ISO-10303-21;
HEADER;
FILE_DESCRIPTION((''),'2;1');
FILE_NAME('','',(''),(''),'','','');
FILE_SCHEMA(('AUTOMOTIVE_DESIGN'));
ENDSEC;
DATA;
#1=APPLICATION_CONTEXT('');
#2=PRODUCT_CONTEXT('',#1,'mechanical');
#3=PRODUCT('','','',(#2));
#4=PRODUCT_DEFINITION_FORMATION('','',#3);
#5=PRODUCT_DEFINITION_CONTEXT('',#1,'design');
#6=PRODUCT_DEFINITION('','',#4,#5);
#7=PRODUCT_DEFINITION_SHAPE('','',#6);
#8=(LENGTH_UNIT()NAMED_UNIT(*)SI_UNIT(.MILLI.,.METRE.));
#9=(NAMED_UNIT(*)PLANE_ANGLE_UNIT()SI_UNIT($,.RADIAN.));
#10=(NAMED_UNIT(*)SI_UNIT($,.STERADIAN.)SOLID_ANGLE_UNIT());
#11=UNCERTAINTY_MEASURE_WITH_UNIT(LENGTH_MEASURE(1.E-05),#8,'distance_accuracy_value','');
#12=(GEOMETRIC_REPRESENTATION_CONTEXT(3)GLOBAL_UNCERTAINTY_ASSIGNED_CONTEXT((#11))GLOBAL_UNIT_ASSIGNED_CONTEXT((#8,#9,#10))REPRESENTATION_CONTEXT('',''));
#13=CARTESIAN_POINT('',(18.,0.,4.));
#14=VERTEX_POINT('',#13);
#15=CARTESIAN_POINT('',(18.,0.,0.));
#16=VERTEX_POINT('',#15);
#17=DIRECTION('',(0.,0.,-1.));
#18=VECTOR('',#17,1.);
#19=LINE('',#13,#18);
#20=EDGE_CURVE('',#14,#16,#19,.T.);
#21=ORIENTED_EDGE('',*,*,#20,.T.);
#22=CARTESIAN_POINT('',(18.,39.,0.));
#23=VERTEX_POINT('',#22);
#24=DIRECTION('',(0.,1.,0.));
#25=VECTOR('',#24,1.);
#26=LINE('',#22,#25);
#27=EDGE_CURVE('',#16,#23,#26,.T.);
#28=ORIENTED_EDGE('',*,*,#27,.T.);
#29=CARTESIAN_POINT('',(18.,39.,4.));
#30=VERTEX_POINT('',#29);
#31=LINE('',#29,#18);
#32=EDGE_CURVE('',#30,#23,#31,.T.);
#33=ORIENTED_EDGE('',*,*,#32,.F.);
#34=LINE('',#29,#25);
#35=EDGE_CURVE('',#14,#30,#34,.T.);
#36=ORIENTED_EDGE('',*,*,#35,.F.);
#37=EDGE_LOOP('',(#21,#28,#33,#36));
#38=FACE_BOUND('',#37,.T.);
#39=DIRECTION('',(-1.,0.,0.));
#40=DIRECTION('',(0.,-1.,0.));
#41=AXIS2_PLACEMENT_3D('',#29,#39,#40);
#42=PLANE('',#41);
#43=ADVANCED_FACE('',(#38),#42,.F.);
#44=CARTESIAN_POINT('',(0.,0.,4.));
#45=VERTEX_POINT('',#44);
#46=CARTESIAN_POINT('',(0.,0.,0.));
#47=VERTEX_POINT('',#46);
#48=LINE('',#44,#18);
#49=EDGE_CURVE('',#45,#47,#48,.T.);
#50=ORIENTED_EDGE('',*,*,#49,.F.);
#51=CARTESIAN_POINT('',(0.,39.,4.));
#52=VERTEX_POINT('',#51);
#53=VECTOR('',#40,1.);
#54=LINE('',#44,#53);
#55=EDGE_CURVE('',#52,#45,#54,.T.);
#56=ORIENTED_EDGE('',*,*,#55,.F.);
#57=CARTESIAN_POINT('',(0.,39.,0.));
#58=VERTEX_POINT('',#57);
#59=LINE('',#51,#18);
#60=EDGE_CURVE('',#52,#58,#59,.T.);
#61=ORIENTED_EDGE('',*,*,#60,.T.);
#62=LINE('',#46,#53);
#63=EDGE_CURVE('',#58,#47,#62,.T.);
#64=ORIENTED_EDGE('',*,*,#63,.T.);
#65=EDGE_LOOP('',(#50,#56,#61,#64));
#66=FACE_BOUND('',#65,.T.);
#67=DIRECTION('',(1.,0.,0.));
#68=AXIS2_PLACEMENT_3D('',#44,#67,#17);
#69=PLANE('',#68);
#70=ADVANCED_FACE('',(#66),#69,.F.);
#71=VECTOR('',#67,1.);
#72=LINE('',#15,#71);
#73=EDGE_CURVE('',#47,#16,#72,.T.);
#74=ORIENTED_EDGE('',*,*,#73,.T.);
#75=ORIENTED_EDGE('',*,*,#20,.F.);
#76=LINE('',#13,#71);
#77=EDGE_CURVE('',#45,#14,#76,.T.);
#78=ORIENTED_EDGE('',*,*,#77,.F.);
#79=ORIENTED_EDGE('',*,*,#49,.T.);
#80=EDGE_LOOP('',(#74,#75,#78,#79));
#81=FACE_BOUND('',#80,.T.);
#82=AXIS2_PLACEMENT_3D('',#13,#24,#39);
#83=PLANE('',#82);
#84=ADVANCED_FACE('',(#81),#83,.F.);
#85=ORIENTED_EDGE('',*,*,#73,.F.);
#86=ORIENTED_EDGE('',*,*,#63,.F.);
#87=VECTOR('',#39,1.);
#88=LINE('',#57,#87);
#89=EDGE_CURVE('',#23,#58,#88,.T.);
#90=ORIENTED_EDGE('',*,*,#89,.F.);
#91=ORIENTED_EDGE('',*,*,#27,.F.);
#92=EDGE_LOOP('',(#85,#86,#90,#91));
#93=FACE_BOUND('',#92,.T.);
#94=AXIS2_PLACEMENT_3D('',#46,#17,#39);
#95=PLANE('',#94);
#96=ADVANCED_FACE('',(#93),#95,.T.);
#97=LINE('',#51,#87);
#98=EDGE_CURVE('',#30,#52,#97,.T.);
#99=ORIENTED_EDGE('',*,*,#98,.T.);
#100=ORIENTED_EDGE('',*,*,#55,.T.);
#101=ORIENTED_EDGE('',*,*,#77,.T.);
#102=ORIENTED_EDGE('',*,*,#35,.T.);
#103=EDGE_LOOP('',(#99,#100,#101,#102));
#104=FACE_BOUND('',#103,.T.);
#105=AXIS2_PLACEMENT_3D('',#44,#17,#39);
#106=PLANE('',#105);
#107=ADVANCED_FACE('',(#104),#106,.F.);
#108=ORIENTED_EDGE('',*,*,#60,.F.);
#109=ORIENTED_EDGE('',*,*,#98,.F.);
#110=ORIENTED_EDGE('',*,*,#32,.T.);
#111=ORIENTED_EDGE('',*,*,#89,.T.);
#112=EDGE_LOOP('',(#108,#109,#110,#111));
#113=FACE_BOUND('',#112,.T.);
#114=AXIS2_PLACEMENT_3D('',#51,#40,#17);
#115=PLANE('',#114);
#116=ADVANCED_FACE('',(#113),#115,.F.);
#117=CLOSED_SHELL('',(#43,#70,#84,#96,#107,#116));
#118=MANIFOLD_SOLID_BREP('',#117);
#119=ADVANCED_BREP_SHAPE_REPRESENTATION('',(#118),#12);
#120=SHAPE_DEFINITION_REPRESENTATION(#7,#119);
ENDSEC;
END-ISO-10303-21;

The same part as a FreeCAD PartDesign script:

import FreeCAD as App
import Part
import Sketcher

doc = App.newDocument("Part")
body = doc.addObject("PartDesign::Body", "Body")

# Sketch on XY plane
sketch1 = body.newObject("Sketcher::SketchObject", "Sketch")
sketch1.AttachmentSupport = (doc.getObject("XY_Plane"), [""])
sketch1.MapMode = "FlatFace"
sketch1.addGeometry([
    Part.LineSegment(App.Vector(0, 39, 0), App.Vector(0, 0, 0)),
    Part.LineSegment(App.Vector(0, 0, 0), App.Vector(18, 0, 0)),
    Part.LineSegment(App.Vector(18, 0, 0), App.Vector(18, 39, 0)),
    Part.LineSegment(App.Vector(18, 39, 0), App.Vector(0, 39, 0)),
], False)
sketch1.addConstraint([
    Sketcher.Constraint("Coincident", 0, 2, 1, 1),
    Sketcher.Constraint("Coincident", 1, 2, 2, 1),
    Sketcher.Constraint("Coincident", 2, 2, 3, 1),
    Sketcher.Constraint("Coincident", 3, 2, 0, 1),
    Sketcher.Constraint("Vertical", 0),
    Sketcher.Constraint("Horizontal", 1),
    Sketcher.Constraint("Vertical", 2),
    Sketcher.Constraint("Horizontal", 3),
    Sketcher.Constraint("Coincident", 0, 2, -1, 1),
    Sketcher.Constraint("DistanceX", 1, 1, 1, 2, 18.0),
    Sketcher.Constraint("DistanceY", 0, 2, 0, 1, 39.0),
])
pad1 = body.newObject("PartDesign::Pad", "Pad")
pad1.Profile = sketch1
pad1.Length = 4

doc.recompute()
